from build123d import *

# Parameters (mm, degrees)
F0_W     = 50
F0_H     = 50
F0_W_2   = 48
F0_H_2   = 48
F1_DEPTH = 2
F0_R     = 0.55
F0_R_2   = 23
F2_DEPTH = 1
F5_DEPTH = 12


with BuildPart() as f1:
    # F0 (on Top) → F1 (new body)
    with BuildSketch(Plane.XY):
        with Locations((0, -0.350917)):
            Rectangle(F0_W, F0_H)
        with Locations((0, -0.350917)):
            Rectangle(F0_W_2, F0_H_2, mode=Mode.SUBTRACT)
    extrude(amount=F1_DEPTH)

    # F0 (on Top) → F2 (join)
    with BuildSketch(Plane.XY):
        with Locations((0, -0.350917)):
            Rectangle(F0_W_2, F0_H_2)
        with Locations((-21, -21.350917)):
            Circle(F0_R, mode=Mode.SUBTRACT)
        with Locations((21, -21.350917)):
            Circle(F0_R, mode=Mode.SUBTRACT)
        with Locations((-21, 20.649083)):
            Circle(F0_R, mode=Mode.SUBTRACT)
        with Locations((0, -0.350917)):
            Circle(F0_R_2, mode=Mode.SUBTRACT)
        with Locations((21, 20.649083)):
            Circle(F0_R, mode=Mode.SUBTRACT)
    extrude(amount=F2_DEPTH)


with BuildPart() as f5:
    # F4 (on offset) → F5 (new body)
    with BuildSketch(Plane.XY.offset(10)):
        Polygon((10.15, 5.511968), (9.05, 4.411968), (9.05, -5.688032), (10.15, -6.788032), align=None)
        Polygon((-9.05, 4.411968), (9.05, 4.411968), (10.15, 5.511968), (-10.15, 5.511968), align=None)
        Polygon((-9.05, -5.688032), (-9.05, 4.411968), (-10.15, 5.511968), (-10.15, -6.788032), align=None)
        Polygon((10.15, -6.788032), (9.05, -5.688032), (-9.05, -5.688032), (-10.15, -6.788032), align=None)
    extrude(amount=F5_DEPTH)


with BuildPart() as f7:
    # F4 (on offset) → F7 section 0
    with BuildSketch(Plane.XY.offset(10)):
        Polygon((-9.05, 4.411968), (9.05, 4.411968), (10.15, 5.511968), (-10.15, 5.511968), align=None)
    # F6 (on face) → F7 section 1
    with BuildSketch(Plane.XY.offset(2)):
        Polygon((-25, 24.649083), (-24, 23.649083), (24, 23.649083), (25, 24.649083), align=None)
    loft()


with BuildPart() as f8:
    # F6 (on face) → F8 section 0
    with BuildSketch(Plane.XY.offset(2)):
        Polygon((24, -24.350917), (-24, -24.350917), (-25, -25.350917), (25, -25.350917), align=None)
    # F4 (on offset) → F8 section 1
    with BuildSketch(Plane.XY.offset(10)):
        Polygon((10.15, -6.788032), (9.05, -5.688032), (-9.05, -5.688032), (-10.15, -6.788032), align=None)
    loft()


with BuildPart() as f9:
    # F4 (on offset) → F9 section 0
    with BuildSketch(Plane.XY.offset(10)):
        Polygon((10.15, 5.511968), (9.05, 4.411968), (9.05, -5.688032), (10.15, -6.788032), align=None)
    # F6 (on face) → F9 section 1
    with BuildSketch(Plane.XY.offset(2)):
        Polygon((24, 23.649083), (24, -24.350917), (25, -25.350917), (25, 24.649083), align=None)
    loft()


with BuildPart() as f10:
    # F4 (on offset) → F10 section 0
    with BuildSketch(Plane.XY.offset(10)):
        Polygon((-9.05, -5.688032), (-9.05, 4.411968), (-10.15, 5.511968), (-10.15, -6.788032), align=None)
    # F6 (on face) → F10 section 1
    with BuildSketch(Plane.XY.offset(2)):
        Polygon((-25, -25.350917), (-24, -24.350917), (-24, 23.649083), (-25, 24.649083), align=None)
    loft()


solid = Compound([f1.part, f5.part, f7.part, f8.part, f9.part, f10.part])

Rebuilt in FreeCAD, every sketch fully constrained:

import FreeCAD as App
import Part
import Sketcher

doc = App.newDocument("Part")
body = doc.addObject("PartDesign::Body", "Body")

sketch1 = body.newObject("Sketcher::SketchObject", "Sketch")
sketch1.AttachmentSupport = (doc.getObject("XY_Plane"), [""])
sketch1.MapMode = "FlatFace"
sketch1.addGeometry([
    Part.LineSegment(App.Vector(-25, 25, 0), App.Vector(-25, -25, 0)),
    Part.LineSegment(App.Vector(-25, -25, 0), App.Vector(25, -25, 0)),
    Part.LineSegment(App.Vector(25, -25, 0), App.Vector(25, 25, 0)),
    Part.LineSegment(App.Vector(25, 25, 0), App.Vector(-25, 25, 0)),
    Part.LineSegment(App.Vector(24, -24, 0), App.Vector(-24, -24, 0)),
    Part.LineSegment(App.Vector(-24, -24, 0), App.Vector(-24, 24, 0)),
    Part.LineSegment(App.Vector(-24, 24, 0), App.Vector(24, 24, 0)),
    Part.LineSegment(App.Vector(24, 24, 0), App.Vector(24, -24, 0)),
], False)
sketch1.addConstraint([
    Sketcher.Constraint("Coincident", 0, 2, 1, 1),
    Sketcher.Constraint("Coincident", 1, 2, 2, 1),
    Sketcher.Constraint("Coincident", 2, 2, 3, 1),
    Sketcher.Constraint("Coincident", 3, 2, 0, 1),
    Sketcher.Constraint("Coincident", 4, 2, 5, 1),
    Sketcher.Constraint("Coincident", 5, 2, 6, 1),
    Sketcher.Constraint("Coincident", 6, 2, 7, 1),
    Sketcher.Constraint("Coincident", 7, 2, 4, 1),
    Sketcher.Constraint("Vertical", 0),
    Sketcher.Constraint("Horizontal", 1),
    Sketcher.Constraint("Vertical", 2),
    Sketcher.Constraint("Horizontal", 3),
    Sketcher.Constraint("Horizontal", 4),
    Sketcher.Constraint("Vertical", 5),
    Sketcher.Constraint("Horizontal", 6),
    Sketcher.Constraint("Vertical", 7),
    Sketcher.Constraint("Equal", 3, 0),
    Sketcher.Constraint("Equal", 6, 5),
    Sketcher.Constraint("DistanceX", 1, 1, 1, 2, 50.0),
    Sketcher.Constraint("DistanceX", 4, 2, 4, 1, 48.0),
    Sketcher.Constraint("DistanceX", 0, 2, -1, 1, 25.0),
    Sketcher.Constraint("DistanceX", 4, 2, -1, 1, 24.0),
    Sketcher.Constraint("DistanceY", 0, 2, 4, 2, 1.0),
    Sketcher.Constraint("DistanceY", 0, 2, -1, 1, 25.350917),
])
pad1 = body.newObject("PartDesign::Pad", "Pad")
pad1.Profile = sketch1
pad1.Length = 2

sketch2 = body.newObject("Sketcher::SketchObject", "Sketch001")
sketch2.AttachmentSupport = (doc.getObject("XY_Plane"), [""])
sketch2.MapMode = "FlatFace"
sketch2.addGeometry([
    Part.LineSegment(App.Vector(-24, 23.6, 0), App.Vector(-24, -24.4, 0)),
    Part.LineSegment(App.Vector(-24, -24.4, 0), App.Vector(24, -24.4, 0)),
    Part.LineSegment(App.Vector(24, -24.4, 0), App.Vector(24, 23.6, 0)),
    Part.LineSegment(App.Vector(24, 23.6, 0), App.Vector(-24, 23.6, 0)),
    Part.Circle(App.Vector(-21, -21.4, 0), App.Vector(0, 0, 1), 0.6),
    Part.Circle(App.Vector(21, -21.4, 0), App.Vector(0, 0, 1), 0.6),
    Part.Circle(App.Vector(-21, 20.6, 0), App.Vector(0, 0, 1), 0.6),
    Part.Circle(App.Vector(0, -0.4, 0), App.Vector(0, 0, 1), 23),
    Part.Circle(App.Vector(21, 20.6, 0), App.Vector(0, 0, 1), 0.6),
], False)
sketch2.addConstraint([
    Sketcher.Constraint("Coincident", 0, 2, 1, 1),
    Sketcher.Constraint("Coincident", 1, 2, 2, 1),
    Sketcher.Constraint("Coincident", 2, 2, 3, 1),
    Sketcher.Constraint("Coincident", 3, 2, 0, 1),
    Sketcher.Constraint("Vertical", 0),
    Sketcher.Constraint("Horizontal", 1),
    Sketcher.Constraint("Vertical", 2),
    Sketcher.Constraint("Horizontal", 3),
    Sketcher.Constraint("Equal", 4, 5),
    Sketcher.Constraint("Equal", 5, 6),
    Sketcher.Constraint("Equal", 6, 8),
    Sketcher.Constraint("Symmetric", 4, 3, 5, 3, -2),
    Sketcher.Constraint("Symmetric", 6, 3, 8, 3, -2),
    Sketcher.Constraint("PointOnObject", 7, 3, -2),
    Sketcher.Constraint("Vertical", 4, 3, 6, 3),
    Sketcher.Constraint("Equal", 3, 0),
    Sketcher.Constraint("Diameter", 7, 46.0),
    Sketcher.Constraint("Diameter", 4, 1.1),
    Sketcher.Constraint("DistanceX", 1, 1, 1, 2, 48.0),
    Sketcher.Constraint("DistanceX", 4, 3, -1, 1, 21.0),
    Sketcher.Constraint("DistanceX", 0, 2, -1, 1, 24.0),
    Sketcher.Constraint("DistanceY", 4, 3, 6, 3, 42.0),
    Sketcher.Constraint("DistanceY", 4, 3, 7, 3, 21.0),
    Sketcher.Constraint("DistanceY", 0, 2, 4, 3, 3.0),
    Sketcher.Constraint("DistanceY", 4, 3, -1, 1, 21.350917),
])
pad2 = body.newObject("PartDesign::Pad", "Pad001")
pad2.Profile = sketch2
pad2.Length = 1
body2 = doc.addObject("PartDesign::Body", "Body001")

sketch3 = body2.newObject("Sketcher::SketchObject", "Sketch002")
sketch3.AttachmentSupport = (doc.getObject("XY_Plane001"), [""])
sketch3.MapMode = "FlatFace"
sketch3.AttachmentOffset = App.Placement(App.Vector(0, 0, 10), App.Rotation())
sketch3.addGeometry([
    Part.LineSegment(App.Vector(10, -7, 0), App.Vector(10, 6, 0)),
    Part.LineSegment(App.Vector(10, 6, 0), App.Vector(-10, 6, 0)),
    Part.LineSegment(App.Vector(-10, 6, 0), App.Vector(-10, -7, 0)),
    Part.LineSegment(App.Vector(-10, -7, 0), App.Vector(10, -7, 0)),
    Part.LineSegment(App.Vector(9, 4, 0), App.Vector(9, -6, 0)),
    Part.LineSegment(App.Vector(9, -6, 0), App.Vector(-9, -6, 0)),
    Part.LineSegment(App.Vector(-9, -6, 0), App.Vector(-9, 4, 0)),
    Part.LineSegment(App.Vector(-9, 4, 0), App.Vector(9, 4, 0)),
], False)
sketch3.addConstraint([
    Sketcher.Constraint("Coincident", 0, 2, 1, 1),
    Sketcher.Constraint("Coincident", 1, 2, 2, 1),
    Sketcher.Constraint("Coincident", 2, 2, 3, 1),
    Sketcher.Constraint("Coincident", 3, 2, 0, 1),
    Sketcher.Constraint("Coincident", 4, 2, 5, 1),
    Sketcher.Constraint("Coincident", 5, 2, 6, 1),
    Sketcher.Constraint("Coincident", 6, 2, 7, 1),
    Sketcher.Constraint("Coincident", 7, 2, 4, 1),
    Sketcher.Constraint("Vertical", 0),
    Sketcher.Constraint("Horizontal", 1),
    Sketcher.Constraint("Vertical", 2),
    Sketcher.Constraint("Horizontal", 3),
    Sketcher.Constraint("Vertical", 4),
    Sketcher.Constraint("Horizontal", 5),
    Sketcher.Constraint("Vertical", 6),
    Sketcher.Constraint("Horizontal", 7),
    Sketcher.Constraint("DistanceX", 1, 2, 1, 1, 20.3),
    Sketcher.Constraint("DistanceX", 5, 2, 5, 1, 18.1),
    Sketcher.Constraint("DistanceY", 0, 1, 0, 2, 12.3),
    Sketcher.Constraint("DistanceY", 4, 2, 4, 1, 10.1),
    Sketcher.Constraint("DistanceX", 4, 2, 3, 2, 1.1),
    Sketcher.Constraint("DistanceY", 3, 2, 4, 2, 1.1),
    Sketcher.Constraint("DistanceX", -1, 1, 0, 2, 10.15),
    Sketcher.Constraint("DistanceY", -1, 1, 0, 2, 5.511968),
])
pad3 = body2.newObject("PartDesign::Pad", "Pad002")
pad3.Profile = sketch3
pad3.Length = 12
body3 = doc.addObject("PartDesign::Body", "Body002")

sketch4 = body3.newObject("Sketcher::SketchObject", "Sketch003")
sketch4.AttachmentSupport = (doc.getObject("XY_Plane002"), [""])
sketch4.MapMode = "FlatFace"
sketch4.AttachmentOffset = App.Placement(App.Vector(0, 0, 10), App.Rotation())
sketch4.addGeometry([
    Part.LineSegment(App.Vector(-9.1, 4.4, 0), App.Vector(9.1, 4.4, 0)),
    Part.LineSegment(App.Vector(9.1, 4.4, 0), App.Vector(10.2, 5.5, 0)),
    Part.LineSegment(App.Vector(10.2, 5.5, 0), App.Vector(-10.2, 5.5, 0)),
    Part.LineSegment(App.Vector(-10.2, 5.5, 0), App.Vector(-9.1, 4.4, 0)),
], False)
sketch4.addConstraint([
    Sketcher.Constraint("Coincident", 0, 2, 1, 1),
    Sketcher.Constraint("Coincident", 1, 2, 2, 1),
    Sketcher.Constraint("Coincident", 2, 2, 3, 1),
    Sketcher.Constraint("Coincident", 3, 2, 0, 1),
    Sketcher.Constraint("Horizontal", 0),
    Sketcher.Constraint("Horizontal", 2),
    Sketcher.Constraint("Perpendicular", 1, 3),
    Sketcher.Constraint("Equal", 1, 3),
    Sketcher.Constraint("DistanceX", 0, 1, 0, 2, 18.1),
    Sketcher.Constraint("DistanceX", 2, 2, 2, 1, 20.3),
    Sketcher.Constraint("DistanceX", -1, 1, 0, 2, 9.05),
    Sketcher.Constraint("DistanceY", -1, 1, 1, 2, 5.511968),
])

sketch5 = body3.newObject("Sketcher::SketchObject", "Sketch004")
sketch5.AttachmentSupport = (doc.getObject("XY_Plane002"), [""])
sketch5.MapMode = "FlatFace"
sketch5.AttachmentOffset = App.Placement(App.Vector(0, 0, 2), App.Rotation())
sketch5.addGeometry([
    Part.LineSegment(App.Vector(-25, 24.6, 0), App.Vector(-24, 23.6, 0)),
    Part.LineSegment(App.Vector(-24, 23.6, 0), App.Vector(24, 23.6, 0)),
    Part.LineSegment(App.Vector(24, 23.6, 0), App.Vector(25, 24.6, 0)),
    Part.LineSegment(App.Vector(25, 24.6, 0), App.Vector(-25, 24.6, 0)),
], False)
sketch5.addConstraint([
    Sketcher.Constraint("Coincident", 0, 2, 1, 1),
    Sketcher.Constraint("Coincident", 1, 2, 2, 1),
    Sketcher.Constraint("Coincident", 2, 2, 3, 1),
    Sketcher.Constraint("Coincident", 3, 2, 0, 1),
    Sketcher.Constraint("Horizontal", 1),
    Sketcher.Constraint("Horizontal", 3),
    Sketcher.Constraint("Perpendicular", 0, 2),
    Sketcher.Constraint("Equal", 0, 2),
    Sketcher.Constraint("DistanceX", 1, 1, 1, 2, 48.0),
    Sketcher.Constraint("DistanceX", 3, 2, 3, 1, 50.0),
    Sketcher.Constraint("DistanceX", 0, 2, -1, 1, 24.0),
    Sketcher.Constraint("DistanceY", -1, 1, 0, 2, 23.649083),
])

additiveloft = body3.newObject("PartDesign::AdditiveLoft", "AdditiveLoft")
additiveloft.Profile = sketch4
additiveloft.Sections = [sketch5]
body4 = doc.addObject("PartDesign::Body", "Body003")

sketch6 = body4.newObject("Sketcher::SketchObject", "Sketch005")
sketch6.AttachmentSupport = (doc.getObject("XY_Plane003"), [""])
sketch6.MapMode = "FlatFace"
sketch6.AttachmentOffset = App.Placement(App.Vector(0, 0, 2), App.Rotation())
sketch6.addGeometry([
    Part.LineSegment(App.Vector(24, -24.4, 0), App.Vector(-24, -24.4, 0)),
    Part.LineSegment(App.Vector(-24, -24.4, 0), App.Vector(-25, -25.4, 0)),
    Part.LineSegment(App.Vector(-25, -25.4, 0), App.Vector(25, -25.4, 0)),
    Part.LineSegment(App.Vector(25, -25.4, 0), App.Vector(24, -24.4, 0)),
], False)
sketch6.addConstraint([
    Sketcher.Constraint("Coincident", 0, 2, 1, 1),
    Sketcher.Constraint("Coincident", 1, 2, 2, 1),
    Sketcher.Constraint("Coincident", 2, 2, 3, 1),
    Sketcher.Constraint("Coincident", 3, 2, 0, 1),
    Sketcher.Constraint("Horizontal", 0),
    Sketcher.Constraint("Horizontal", 2),
    Sketcher.Constraint("Perpendicular", 1, 3),
    Sketcher.Constraint("Equal", 1, 3),
    Sketcher.Constraint("DistanceX", 0, 2, 0, 1, 48.0),
    Sketcher.Constraint("DistanceX", 2, 1, 2, 2, 50.0),
    Sketcher.Constraint("DistanceX", 0, 2, -1, 1, 24.0),
    Sketcher.Constraint("DistanceY", 0, 2, -1, 1, 24.350917),
])

sketch7 = body4.newObject("Sketcher::SketchObject", "Sketch006")
sketch7.AttachmentSupport = (doc.getObject("XY_Plane003"), [""])
sketch7.MapMode = "FlatFace"
sketch7.AttachmentOffset = App.Placement(App.Vector(0, 0, 10), App.Rotation())
sketch7.addGeometry([
    Part.LineSegment(App.Vector(10.2, -6.8, 0), App.Vector(9.1, -5.7, 0)),
    Part.LineSegment(App.Vector(9.1, -5.7, 0), App.Vector(-9.1, -5.7, 0)),
    Part.LineSegment(App.Vector(-9.1, -5.7, 0), App.Vector(-10.2, -6.8, 0)),
    Part.LineSegment(App.Vector(-10.2, -6.8, 0), App.Vector(10.2, -6.8, 0)),
], False)
sketch7.addConstraint([
    Sketcher.Constraint("Coincident", 0, 2, 1, 1),
    Sketcher.Constraint("Coincident", 1, 2, 2, 1),
    Sketcher.Constraint("Coincident", 2, 2, 3, 1),
    Sketcher.Constraint("Coincident", 3, 2, 0, 1),
    Sketcher.Constraint("Horizontal", 1),
    Sketcher.Constraint("Horizontal", 3),
    Sketcher.Constraint("Perpendicular", 0, 2),
    Sketcher.Constraint("Equal", 0, 2),
    Sketcher.Constraint("DistanceX", 1, 2, 1, 1, 18.1),
    Sketcher.Constraint("DistanceX", 3, 1, 3, 2, 20.3),
    Sketcher.Constraint("DistanceX", -1, 1, 0, 2, 9.05),
    Sketcher.Constraint("DistanceY", 0, 2, -1, 1, 5.688032),
])

additiveloft2 = body4.newObject("PartDesign::AdditiveLoft", "AdditiveLoft001")
additiveloft2.Profile = sketch6
additiveloft2.Sections = [sketch7]
body5 = doc.addObject("PartDesign::Body", "Body004")

sketch8 = body5.newObject("Sketcher::SketchObject", "Sketch007")
sketch8.AttachmentSupport = (doc.getObject("XY_Plane004"), [""])
sketch8.MapMode = "FlatFace"
sketch8.AttachmentOffset = App.Placement(App.Vector(0, 0, 10), App.Rotation())
sketch8.addGeometry([
    Part.LineSegment(App.Vector(10.2, 5.5, 0), App.Vector(9.1, 4.4, 0)),
    Part.LineSegment(App.Vector(9.1, 4.4, 0), App.Vector(9.1, -5.7, 0)),
    Part.LineSegment(App.Vector(9.1, -5.7, 0), App.Vector(10.2, -6.8, 0)),
    Part.LineSegment(App.Vector(10.2, -6.8, 0), App.Vector(10.2, 5.5, 0)),
], False)
sketch8.addConstraint([
    Sketcher.Constraint("Coincident", 0, 2, 1, 1),
    Sketcher.Constraint("Coincident", 1, 2, 2, 1),
    Sketcher.Constraint("Coincident", 2, 2, 3, 1),
    Sketcher.Constraint("Coincident", 3, 2, 0, 1),
    Sketcher.Constraint("Vertical", 1),
    Sketcher.Constraint("Vertical", 3),
    Sketcher.Constraint("Perpendicular", 0, 2),
    Sketcher.Constraint("Equal", 0, 2),
    Sketcher.Constraint("DistanceY", 1, 2, 1, 1, 10.1),
    Sketcher.Constraint("DistanceY", 3, 1, 3, 2, 12.3),
    Sketcher.Constraint("DistanceX", -1, 1, 0, 2, 9.05),
    Sketcher.Constraint("DistanceY", 1, 2, -1, 1, 5.688032),
])

sketch9 = body5.newObject("Sketcher::SketchObject", "Sketch008")
sketch9.AttachmentSupport = (doc.getObject("XY_Plane004"), [""])
sketch9.MapMode = "FlatFace"
sketch9.AttachmentOffset = App.Placement(App.Vector(0, 0, 2), App.Rotation())
sketch9.addGeometry([
    Part.LineSegment(App.Vector(24, 23.6, 0), App.Vector(24, -24.4, 0)),
    Part.LineSegment(App.Vector(24, -24.4, 0), App.Vector(25, -25.4, 0)),
    Part.LineSegment(App.Vector(25, -25.4, 0), App.Vector(25, 24.6, 0)),
    Part.LineSegment(App.Vector(25, 24.6, 0), App.Vector(24, 23.6, 0)),
], False)
sketch9.addConstraint([
    Sketcher.Constraint("Coincident", 0, 2, 1, 1),
    Sketcher.Constraint("Coincident", 1, 2, 2, 1),
    Sketcher.Constraint("Coincident", 2, 2, 3, 1),
    Sketcher.Constraint("Coincident", 3, 2, 0, 1),
    Sketcher.Constraint("Vertical", 0),
    Sketcher.Constraint("Vertical", 2),
    Sketcher.Constraint("Perpendicular", 1, 3),
    Sketcher.Constraint("Equal", 1, 3),
    Sketcher.Constraint("DistanceY", 0, 2, 0, 1, 48.0),
    Sketcher.Constraint("DistanceY", 2, 1, 2, 2, 50.0),
    Sketcher.Constraint("DistanceX", -1, 1, 0, 2, 24.0),
    Sketcher.Constraint("DistanceY", 0, 2, -1, 1, 24.350917),
])

additiveloft3 = body5.newObject("PartDesign::AdditiveLoft", "AdditiveLoft002")
additiveloft3.Profile = sketch8
additiveloft3.Sections = [sketch9]
body6 = doc.addObject("PartDesign::Body", "Body005")

sketch10 = body6.newObject("Sketcher::SketchObject", "Sketch009")
sketch10.AttachmentSupport = (doc.getObject("XY_Plane005"), [""])
sketch10.MapMode = "FlatFace"
sketch10.AttachmentOffset = App.Placement(App.Vector(0, 0, 10), App.Rotation())
sketch10.addGeometry([
    Part.LineSegment(App.Vector(-9.1, -5.7, 0), App.Vector(-9.1, 4.4, 0)),
    Part.LineSegment(App.Vector(-9.1, 4.4, 0), App.Vector(-10.2, 5.5, 0)),
    Part.LineSegment(App.Vector(-10.2, 5.5, 0), App.Vector(-10.2, -6.8, 0)),
    Part.LineSegment(App.Vector(-10.2, -6.8, 0), App.Vector(-9.1, -5.7, 0)),
], False)
sketch10.addConstraint([
    Sketcher.Constraint("Coincident", 0, 2, 1, 1),
    Sketcher.Constraint("Coincident", 1, 2, 2, 1),
    Sketcher.Constraint("Coincident", 2, 2, 3, 1),
    Sketcher.Constraint("Coincident", 3, 2, 0, 1),
    Sketcher.Constraint("Vertical", 0),
    Sketcher.Constraint("Vertical", 2),
    Sketcher.Constraint("Perpendicular", 1, 3),
    Sketcher.Constraint("Equal", 1, 3),
    Sketcher.Constraint("DistanceY", 0, 1, 0, 2, 10.1),
    Sketcher.Constraint("DistanceY", 2, 2, 2, 1, 12.3),
    Sketcher.Constraint("DistanceX", 0, 2, -1, 1, 9.05),
    Sketcher.Constraint("DistanceY", -1, 1, 1, 2, 5.511968),
])

sketch11 = body6.newObject("Sketcher::SketchObject", "Sketch010")
sketch11.AttachmentSupport = (doc.getObject("XY_Plane005"), [""])
sketch11.MapMode = "FlatFace"
sketch11.AttachmentOffset = App.Placement(App.Vector(0, 0, 2), App.Rotation())
sketch11.addGeometry([
    Part.LineSegment(App.Vector(-25, -25.4, 0), App.Vector(-24, -24.4, 0)),
    Part.LineSegment(App.Vector(-24, -24.4, 0), App.Vector(-24, 23.6, 0)),
    Part.LineSegment(App.Vector(-24, 23.6, 0), App.Vector(-25, 24.6, 0)),
    Part.LineSegment(App.Vector(-25, 24.6, 0), App.Vector(-25, -25.4, 0)),
], False)
sketch11.addConstraint([
    Sketcher.Constraint("Coincident", 0, 2, 1, 1),
    Sketcher.Constraint("Coincident", 1, 2, 2, 1),
    Sketcher.Constraint("Coincident", 2, 2, 3, 1),
    Sketcher.Constraint("Coincident", 3, 2, 0, 1),
    Sketcher.Constraint("Vertical", 1),
    Sketcher.Constraint("Vertical", 3),
    Sketcher.Constraint("Perpendicular", 0, 2),
    Sketcher.Constraint("Equal", 0, 2),
    Sketcher.Constraint("DistanceY", 1, 1, 1, 2, 48.0),
    Sketcher.Constraint("DistanceY", 3, 2, 3, 1, 50.0),
    Sketcher.Constraint("DistanceX", 0, 2, -1, 1, 24.0),
    Sketcher.Constraint("DistanceY", 0, 2, -1, 1, 24.350917),
])

additiveloft4 = body6.newObject("PartDesign::AdditiveLoft", "AdditiveLoft003")
additiveloft4.Profile = sketch10
additiveloft4.Sections = [sketch11]

doc.recompute()
